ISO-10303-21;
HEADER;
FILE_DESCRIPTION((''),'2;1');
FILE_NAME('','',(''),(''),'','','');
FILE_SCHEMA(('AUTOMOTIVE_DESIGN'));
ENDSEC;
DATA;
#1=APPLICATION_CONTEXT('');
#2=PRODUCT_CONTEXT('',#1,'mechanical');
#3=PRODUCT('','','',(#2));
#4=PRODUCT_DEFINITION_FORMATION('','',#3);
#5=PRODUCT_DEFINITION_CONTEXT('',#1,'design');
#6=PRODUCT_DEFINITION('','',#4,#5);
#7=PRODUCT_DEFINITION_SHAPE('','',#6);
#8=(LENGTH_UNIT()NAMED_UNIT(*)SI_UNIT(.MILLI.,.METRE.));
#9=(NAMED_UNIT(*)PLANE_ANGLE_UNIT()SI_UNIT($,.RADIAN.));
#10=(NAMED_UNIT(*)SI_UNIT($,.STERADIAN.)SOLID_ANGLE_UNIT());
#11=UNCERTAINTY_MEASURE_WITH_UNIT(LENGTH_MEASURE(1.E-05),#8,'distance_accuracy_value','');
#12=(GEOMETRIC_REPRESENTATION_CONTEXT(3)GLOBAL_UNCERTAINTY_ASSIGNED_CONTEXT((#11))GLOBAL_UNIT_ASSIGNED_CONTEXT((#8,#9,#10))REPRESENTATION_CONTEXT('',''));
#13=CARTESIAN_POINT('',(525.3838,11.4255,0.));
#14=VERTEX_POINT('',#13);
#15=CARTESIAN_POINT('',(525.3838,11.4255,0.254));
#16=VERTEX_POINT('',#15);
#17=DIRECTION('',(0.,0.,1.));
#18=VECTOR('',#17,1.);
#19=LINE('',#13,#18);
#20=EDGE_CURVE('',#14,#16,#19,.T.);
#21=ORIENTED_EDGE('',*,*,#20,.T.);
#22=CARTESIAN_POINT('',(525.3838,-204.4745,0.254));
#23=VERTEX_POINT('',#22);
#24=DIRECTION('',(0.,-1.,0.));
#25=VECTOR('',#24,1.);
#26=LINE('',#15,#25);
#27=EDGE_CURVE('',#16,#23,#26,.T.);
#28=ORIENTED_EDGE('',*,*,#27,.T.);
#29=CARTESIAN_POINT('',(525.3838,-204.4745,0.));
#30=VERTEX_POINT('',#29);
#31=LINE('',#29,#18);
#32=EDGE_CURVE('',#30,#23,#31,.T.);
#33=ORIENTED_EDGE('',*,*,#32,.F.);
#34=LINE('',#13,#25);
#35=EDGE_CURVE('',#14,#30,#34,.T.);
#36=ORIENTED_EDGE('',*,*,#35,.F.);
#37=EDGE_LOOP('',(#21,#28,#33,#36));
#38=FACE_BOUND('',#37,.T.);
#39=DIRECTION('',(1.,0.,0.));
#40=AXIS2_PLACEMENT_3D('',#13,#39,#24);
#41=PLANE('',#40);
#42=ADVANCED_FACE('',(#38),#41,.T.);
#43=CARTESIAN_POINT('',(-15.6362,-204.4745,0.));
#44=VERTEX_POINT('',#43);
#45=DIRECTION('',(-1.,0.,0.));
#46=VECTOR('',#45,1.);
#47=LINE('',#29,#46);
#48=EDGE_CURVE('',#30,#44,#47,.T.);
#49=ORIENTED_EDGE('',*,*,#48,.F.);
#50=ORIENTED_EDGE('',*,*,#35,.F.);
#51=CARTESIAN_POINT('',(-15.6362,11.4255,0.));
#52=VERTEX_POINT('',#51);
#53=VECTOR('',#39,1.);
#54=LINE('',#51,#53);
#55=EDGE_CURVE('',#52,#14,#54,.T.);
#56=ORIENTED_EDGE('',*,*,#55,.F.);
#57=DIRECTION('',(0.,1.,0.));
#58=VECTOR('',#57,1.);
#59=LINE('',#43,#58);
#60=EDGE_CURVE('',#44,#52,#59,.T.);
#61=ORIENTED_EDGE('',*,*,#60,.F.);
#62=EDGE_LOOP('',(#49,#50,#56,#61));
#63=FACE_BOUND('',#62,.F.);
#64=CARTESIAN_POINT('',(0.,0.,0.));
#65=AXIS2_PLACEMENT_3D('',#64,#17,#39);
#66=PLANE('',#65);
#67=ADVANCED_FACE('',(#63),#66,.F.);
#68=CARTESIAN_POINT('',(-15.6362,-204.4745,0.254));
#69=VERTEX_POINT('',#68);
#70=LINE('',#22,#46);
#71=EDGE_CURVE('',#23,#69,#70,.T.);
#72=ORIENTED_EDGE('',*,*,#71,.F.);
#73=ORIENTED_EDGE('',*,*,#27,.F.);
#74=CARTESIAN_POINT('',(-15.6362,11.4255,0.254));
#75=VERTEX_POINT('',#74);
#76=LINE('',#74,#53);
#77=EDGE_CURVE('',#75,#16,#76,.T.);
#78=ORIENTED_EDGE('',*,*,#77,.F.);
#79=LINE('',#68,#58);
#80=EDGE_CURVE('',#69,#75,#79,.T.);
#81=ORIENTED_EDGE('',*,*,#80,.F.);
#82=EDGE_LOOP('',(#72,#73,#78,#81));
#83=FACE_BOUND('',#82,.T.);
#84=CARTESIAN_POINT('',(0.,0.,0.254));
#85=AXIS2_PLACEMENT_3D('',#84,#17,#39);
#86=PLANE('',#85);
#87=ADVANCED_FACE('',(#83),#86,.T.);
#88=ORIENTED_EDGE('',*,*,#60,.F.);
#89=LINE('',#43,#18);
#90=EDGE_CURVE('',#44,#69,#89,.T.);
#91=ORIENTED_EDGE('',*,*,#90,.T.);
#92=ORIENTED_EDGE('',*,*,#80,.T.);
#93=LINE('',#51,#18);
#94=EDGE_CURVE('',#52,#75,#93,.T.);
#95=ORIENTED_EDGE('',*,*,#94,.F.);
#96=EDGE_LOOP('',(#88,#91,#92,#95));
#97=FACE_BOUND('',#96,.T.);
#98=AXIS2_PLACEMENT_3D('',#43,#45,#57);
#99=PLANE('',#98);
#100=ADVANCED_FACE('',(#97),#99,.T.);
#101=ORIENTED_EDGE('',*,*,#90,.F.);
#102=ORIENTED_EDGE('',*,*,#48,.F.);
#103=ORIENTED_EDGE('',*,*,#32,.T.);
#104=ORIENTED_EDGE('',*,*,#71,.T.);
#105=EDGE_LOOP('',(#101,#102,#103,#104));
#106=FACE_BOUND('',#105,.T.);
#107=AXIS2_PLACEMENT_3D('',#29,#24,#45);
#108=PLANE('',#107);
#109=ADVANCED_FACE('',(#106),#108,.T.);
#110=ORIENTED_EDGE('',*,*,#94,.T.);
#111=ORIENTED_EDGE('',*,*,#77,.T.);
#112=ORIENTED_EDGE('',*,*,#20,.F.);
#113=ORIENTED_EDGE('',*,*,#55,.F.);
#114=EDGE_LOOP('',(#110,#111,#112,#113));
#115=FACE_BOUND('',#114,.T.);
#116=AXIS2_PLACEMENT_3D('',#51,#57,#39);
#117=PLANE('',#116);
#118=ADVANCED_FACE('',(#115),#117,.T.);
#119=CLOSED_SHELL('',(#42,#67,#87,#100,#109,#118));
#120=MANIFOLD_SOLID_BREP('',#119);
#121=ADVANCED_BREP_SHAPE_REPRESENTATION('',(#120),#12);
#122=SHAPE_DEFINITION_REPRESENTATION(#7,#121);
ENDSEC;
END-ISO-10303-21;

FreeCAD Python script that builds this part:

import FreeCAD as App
import Part
import Sketcher
from FreeCAD import Vector
Q = App.Units.Quantity


def add_polygon(sketch, points):
    """Adds a closed chain of lines whose ends are joined by coincident constraints."""
    first, n = sketch.GeometryCount, len(points)
    for a, b in zip(points, points[1:] + points[:1]):
        sketch.addGeometry(Part.LineSegment(App.Vector(*a, 0), App.Vector(*b, 0)), False)
    for i in range(n):
        sketch.addConstraint(Sketcher.Constraint("Coincident", first + i, 2, first + (i + 1) % n, 1))

doc = App.newDocument("Part")
body = doc.addObject("PartDesign::Body", "Body")

sketch1 = doc.addObject("Sketcher::SketchObject", "Sketch")
body.addObject(sketch1)
sketch1.AttachmentSupport = (doc.XY_Plane, [""])
sketch1.MapMode = "FlatFace"
add_polygon(sketch1, [(525.3838, 11.4255), (-15.6362, 11.4255), (-15.6362, -204.4745), (525.3838, -204.4745)])
sketch1.addConstraint([
    Sketcher.Constraint("Horizontal", 0),
    Sketcher.Constraint("Vertical", 1),
    Sketcher.Constraint("Horizontal", 2),
    Sketcher.Constraint("Vertical", 3),
    Sketcher.Constraint("DistanceX", 0, 2, 0, 1, Q("21.3 in")),
    Sketcher.Constraint("DistanceY", 1, 2, 1, 1, Q("8.5 in")),
    Sketcher.Constraint("DistanceX", 0, 2, -1, 1, Q("0.6156 in")),
    Sketcher.Constraint("DistanceY", -1, 1, 0, 2, Q("11.4255 mm")),
])
pad1 = doc.addObject("PartDesign::Pad", "Pad")
body.addObject(pad1)
pad1.Profile = sketch1
pad1.Length = Q("0.01 in")

doc.recompute()
